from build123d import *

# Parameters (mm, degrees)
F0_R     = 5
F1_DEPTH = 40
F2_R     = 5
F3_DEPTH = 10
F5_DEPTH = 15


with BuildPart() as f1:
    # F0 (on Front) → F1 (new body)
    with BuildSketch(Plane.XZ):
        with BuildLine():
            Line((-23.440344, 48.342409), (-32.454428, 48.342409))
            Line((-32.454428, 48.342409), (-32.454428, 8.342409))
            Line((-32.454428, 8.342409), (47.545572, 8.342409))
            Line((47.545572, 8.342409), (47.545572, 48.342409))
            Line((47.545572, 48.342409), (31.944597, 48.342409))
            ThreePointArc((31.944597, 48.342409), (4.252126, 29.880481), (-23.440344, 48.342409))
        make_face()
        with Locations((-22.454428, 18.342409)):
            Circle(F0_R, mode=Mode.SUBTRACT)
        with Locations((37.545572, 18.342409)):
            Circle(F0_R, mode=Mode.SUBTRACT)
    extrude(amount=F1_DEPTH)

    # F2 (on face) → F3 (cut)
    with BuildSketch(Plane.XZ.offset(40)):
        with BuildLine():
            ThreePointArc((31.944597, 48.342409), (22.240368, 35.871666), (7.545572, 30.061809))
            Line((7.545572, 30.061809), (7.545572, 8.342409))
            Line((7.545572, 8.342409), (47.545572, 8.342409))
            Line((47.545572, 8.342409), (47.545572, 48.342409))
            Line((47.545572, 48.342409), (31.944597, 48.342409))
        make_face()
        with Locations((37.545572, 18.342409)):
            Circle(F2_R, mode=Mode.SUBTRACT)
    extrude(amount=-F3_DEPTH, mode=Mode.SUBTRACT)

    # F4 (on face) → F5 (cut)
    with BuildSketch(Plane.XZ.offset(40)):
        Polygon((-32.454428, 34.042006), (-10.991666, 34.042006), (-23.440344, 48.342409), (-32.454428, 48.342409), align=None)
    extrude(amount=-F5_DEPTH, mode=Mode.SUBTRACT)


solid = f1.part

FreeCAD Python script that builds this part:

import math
import FreeCAD as App
import Part
import Sketcher

V = App.Vector

doc = App.newDocument("Part")
body = doc.addObject("PartDesign::Body", "Body")

sketch1 = body.newObject("Sketcher::SketchObject", "Sketch")
sketch1.AttachmentSupport = (doc.getObject("XZ_Plane"), [""])
sketch1.MapMode = "FlatFace"
sketch1.addGeometry([
    Part.LineSegment(V(-23, 48, 0), V(-32, 48, 0)),
    Part.LineSegment(V(-32, 48, 0), V(-32, 8, 0)),
    Part.LineSegment(V(-32, 8, 0), V(48, 8, 0)),
    Part.LineSegment(V(48, 8, 0), V(48, 48, 0)),
    Part.LineSegment(V(48, 48, 0), V(32, 48, 0)),
    Part.ArcOfCircle(Part.Circle(V(4, 60, 0), V(0, 0, 1), 30), math.radians(-157), math.radians(-23)),
    Part.Circle(V(-22, 18, 0), V(0, 0, 1), 5),
    Part.Circle(V(38, 18, 0), V(0, 0, 1), 5),
], False)
sketch1.addConstraint([
    Sketcher.Constraint("Coincident", 0, 2, 1, 1),
    Sketcher.Constraint("Coincident", 1, 2, 2, 1),
    Sketcher.Constraint("Coincident", 2, 2, 3, 1),
    Sketcher.Constraint("Coincident", 3, 2, 4, 1),
    Sketcher.Constraint("Coincident", 4, 2, 5, 2),
    Sketcher.Constraint("Coincident", 5, 1, 0, 1),
    Sketcher.Constraint("Horizontal", 0),
    Sketcher.Constraint("Vertical", 1),
    Sketcher.Constraint("Horizontal", 2),
    Sketcher.Constraint("Vertical", 3),
    Sketcher.Constraint("Horizontal", 4),
    Sketcher.Constraint("Equal", 6, 7),
    Sketcher.Constraint("Horizontal", 6, 3, 7, 3),
    Sketcher.Constraint("Horizontal", 0, 2, 3, 2),
    Sketcher.Constraint("Diameter", 6, 10.0),
    Sketcher.Constraint("Radius", 5, 30.000001),
    Sketcher.Constraint("DistanceX", 2, 1, 2, 2, 80.0),
    Sketcher.Constraint("DistanceY", 1, 2, 1, 1, 40.0),
    Sketcher.Constraint("DistanceX", 6, 3, 7, 3, 60.0),
    Sketcher.Constraint("DistanceX", 0, 2, 6, 3, 10.0),
    Sketcher.Constraint("DistanceY", 6, 3, 0, 2, 30.0),
    Sketcher.Constraint("DistanceX", 0, 2, 0, 1, 9.014084),
    Sketcher.Constraint("DistanceX", 4, 2, 4, 1, 15.600975),
    Sketcher.Constraint("DistanceY", -1, 1, 5, 3, 59.880482),
    Sketcher.Constraint("DistanceX", 6, 3, -1, 1, 22.454428),
])
pad1 = body.newObject("PartDesign::Pad", "Pad")
pad1.Profile = sketch1
pad1.Length = 40

sketch2 = body.newObject("Sketcher::SketchObject", "Sketch001")
sketch2.AttachmentSupport = (doc.getObject("XZ_Plane"), [""])
sketch2.MapMode = "FlatFace"
sketch2.AttachmentOffset = App.Placement(V(0, 0, 40), App.Rotation())
sketch2.addGeometry([
    Part.ArcOfCircle(Part.Circle(V(4, 60, 0), V(0, 0, 1), 30), math.radians(-84), math.radians(-23)),
    Part.LineSegment(V(8, 30, 0), V(8, 8, 0)),
    Part.LineSegment(V(8, 8, 0), V(48, 8, 0)),
    Part.LineSegment(V(48, 8, 0), V(48, 48, 0)),
    Part.LineSegment(V(48, 48, 0), V(32, 48, 0)),
    Part.Circle(V(38, 18, 0), V(0, 0, 1), 5),
], False)
sketch2.addConstraint([
    Sketcher.Constraint("Coincident", 0, 1, 1, 1),
    Sketcher.Constraint("Coincident", 1, 2, 2, 1),
    Sketcher.Constraint("Coincident", 2, 2, 3, 1),
    Sketcher.Constraint("Coincident", 3, 2, 4, 1),
    Sketcher.Constraint("Coincident", 4, 2, 0, 2),
    Sketcher.Constraint("Vertical", 1),
    Sketcher.Constraint("Horizontal", 2),
    Sketcher.Constraint("Vertical", 3),
    Sketcher.Constraint("Horizontal", 4),
    Sketcher.Constraint("Equal", 2, 3),
    Sketcher.Constraint("Diameter", 5, 10.0),
    Sketcher.Constraint("DistanceX", 2, 1, 2, 2, 40.0),
    Sketcher.Constraint("DistanceX", 0, 1, 5, 3, 30.0),
    Sketcher.Constraint("DistanceY", 1, 2, 5, 3, 10.0),
    Sketcher.Constraint("DistanceY", 1, 2, 1, 1, 21.7194),
    Sketcher.Constraint("Radius", 0, 29.999998),
    Sketcher.Constraint("DistanceX", 4, 2, 4, 1, 15.600975),
    Sketcher.Constraint("DistanceX", -1, 1, 0, 3, 4.252129),
    Sketcher.Constraint("DistanceY", -1, 1, 0, 3, 59.880479),
])
pocket1 = body.newObject("PartDesign::Pocket", "Pocket")
pocket1.Profile = sketch2
pocket1.Length = 10

sketch3 = body.newObject("Sketcher::SketchObject", "Sketch002")
sketch3.AttachmentSupport = (doc.getObject("XZ_Plane"), [""])
sketch3.MapMode = "FlatFace"
sketch3.AttachmentOffset = App.Placement(V(0, 0, 40), App.Rotation())
sketch3.addGeometry([
    Part.LineSegment(V(-32, 34, 0), V(-11, 34, 0)),
    Part.LineSegment(V(-11, 34, 0), V(-23, 48, 0)),
    Part.LineSegment(V(-23, 48, 0), V(-32, 48, 0)),
    Part.LineSegment(V(-32, 48, 0), V(-32, 34, 0)),
], False)
sketch3.addConstraint([
    Sketcher.Constraint("Coincident", 0, 2, 1, 1),
    Sketcher.Constraint("Coincident", 1, 2, 2, 1),
    Sketcher.Constraint("Coincident", 2, 2, 3, 1),
    Sketcher.Constraint("Coincident", 3, 2, 0, 1),
    Sketcher.Constraint("Horizontal", 0),
    Sketcher.Constraint("Horizontal", 2),
    Sketcher.Constraint("Vertical", 3),
    Sketcher.Constraint("DistanceX", 0, 1, 0, 2, 21.462762),
    Sketcher.Constraint("DistanceX", 2, 2, 2, 1, 9.014084),
    Sketcher.Constraint("DistanceY", 3, 2, 3, 1, 14.300403),
    Sketcher.Constraint("DistanceY", -1, 1, 1, 2, 48.342409),
    Sketcher.Constraint("DistanceX", 0, 2, -1, 1, 10.991666),
])
pocket2 = body.newObject("PartDesign::Pocket", "Pocket001")
pocket2.Profile = sketch3
pocket2.Length = 15

doc.recompute()
